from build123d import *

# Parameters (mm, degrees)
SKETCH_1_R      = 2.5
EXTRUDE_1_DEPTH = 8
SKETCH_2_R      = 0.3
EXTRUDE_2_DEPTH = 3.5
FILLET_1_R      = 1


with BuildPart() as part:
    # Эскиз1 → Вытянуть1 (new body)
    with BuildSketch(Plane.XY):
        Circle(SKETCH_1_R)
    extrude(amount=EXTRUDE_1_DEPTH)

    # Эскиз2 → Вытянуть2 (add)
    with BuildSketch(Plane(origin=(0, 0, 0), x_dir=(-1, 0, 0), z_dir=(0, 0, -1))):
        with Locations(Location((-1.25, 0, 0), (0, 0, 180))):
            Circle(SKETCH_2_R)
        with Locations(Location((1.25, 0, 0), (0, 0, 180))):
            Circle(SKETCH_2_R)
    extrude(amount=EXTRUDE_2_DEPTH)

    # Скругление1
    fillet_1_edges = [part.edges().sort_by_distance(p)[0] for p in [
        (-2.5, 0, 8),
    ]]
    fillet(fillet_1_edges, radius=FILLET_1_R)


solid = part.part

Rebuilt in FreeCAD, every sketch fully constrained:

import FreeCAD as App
import Part
import Sketcher

V = App.Vector


def edges_at(feature, points):
    """Names of the edges that pass closest to the given points."""
    edges = feature.Shape.Edges
    near = lambda p: min(range(len(edges)), key=lambda i: edges[i].distToShape(Part.Vertex(*p))[0])
    return sorted({f"Edge{near(p) + 1}" for p in points})

doc = App.newDocument("Part")
body = doc.addObject("PartDesign::Body", "Body")

# Sketch on XY plane
sketch1 = body.newObject("Sketcher::SketchObject", "Sketch")
sketch1.AttachmentSupport = (doc.getObject("XY_Plane"), [""])
sketch1.MapMode = "FlatFace"
sketch1.addGeometry(Part.Circle(V(0, 0, 0), V(0, 0, 1), 2.5), False)
sketch1.addConstraint(Sketcher.Constraint("Coincident", 0, 3, -1, 1))
sketch1.addConstraint(Sketcher.Constraint("Diameter", 0, 5.0))
pad1 = body.newObject("PartDesign::Pad", "Pad")
pad1.Profile = sketch1
pad1.Length = 8

# Sketch on XY plane
sketch2 = body.newObject("Sketcher::SketchObject", "Sketch001")
sketch2.AttachmentSupport = (doc.getObject("XY_Plane"), [""])
sketch2.MapMode = "FlatFace"
sketch2.addGeometry(Part.Circle(V(1.25, 0, 0), V(0, 0, 1), 0.3), False)
sketch2.addGeometry(Part.Circle(V(-1.25, 0, 0), V(0, 0, 1), 0.3), False)
sketch2.addConstraint(Sketcher.Constraint("Equal", 0, 1))
sketch2.addConstraint(Sketcher.Constraint("Symmetric", 0, 3, 1, 3, -1, 1))
sketch2.addConstraint(Sketcher.Constraint("PointOnObject", 0, 3, -1))
sketch2.addConstraint(Sketcher.Constraint("Diameter", 0, 0.6))
sketch2.addConstraint(Sketcher.Constraint("DistanceX", 1, 3, 0, 3, 2.5))
pad2 = body.newObject("PartDesign::Pad", "Pad001")
pad2.Profile = sketch2
pad2.Length = 3.5
pad2.Reversed = True
doc.recompute()

fillet = body.newObject("PartDesign::Fillet", "Fillet")
fillet.Base = (pad2, edges_at(pad2, [(-2.5, 0, 8)]))
fillet.Radius = 1

doc.recompute()
